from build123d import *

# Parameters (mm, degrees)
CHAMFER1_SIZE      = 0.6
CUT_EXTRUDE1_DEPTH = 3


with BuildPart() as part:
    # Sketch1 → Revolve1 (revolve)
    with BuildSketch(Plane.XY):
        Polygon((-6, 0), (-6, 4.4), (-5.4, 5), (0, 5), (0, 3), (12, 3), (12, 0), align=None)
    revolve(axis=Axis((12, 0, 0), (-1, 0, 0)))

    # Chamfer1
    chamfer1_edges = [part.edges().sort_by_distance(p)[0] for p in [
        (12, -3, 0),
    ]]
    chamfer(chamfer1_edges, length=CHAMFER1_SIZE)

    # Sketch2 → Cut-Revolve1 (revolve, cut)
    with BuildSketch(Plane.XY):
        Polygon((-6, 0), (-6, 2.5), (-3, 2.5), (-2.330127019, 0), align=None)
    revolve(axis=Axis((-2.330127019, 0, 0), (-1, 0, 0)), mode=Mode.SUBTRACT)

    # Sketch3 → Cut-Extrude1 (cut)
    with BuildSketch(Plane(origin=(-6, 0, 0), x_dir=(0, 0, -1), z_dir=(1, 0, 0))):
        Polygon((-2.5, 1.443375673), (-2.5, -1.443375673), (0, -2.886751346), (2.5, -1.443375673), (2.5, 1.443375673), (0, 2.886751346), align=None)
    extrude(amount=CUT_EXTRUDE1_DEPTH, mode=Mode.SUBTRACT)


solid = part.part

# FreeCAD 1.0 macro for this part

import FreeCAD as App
import Part
import Sketcher
Q = App.Units.Quantity


def edges_at(feature, points):
    """Names of the edges that pass closest to the given points."""
    edges = feature.Shape.Edges
    near = lambda p: min(range(len(edges)), key=lambda i: edges[i].distToShape(Part.Vertex(*p))[0])
    return sorted({f"Edge{near(p) + 1}" for p in points})


def add_polygon(sketch, points):
    """Adds a closed chain of lines whose ends are joined by coincident constraints."""
    first, n = sketch.GeometryCount, len(points)
    for a, b in zip(points, points[1:] + points[:1]):
        sketch.addGeometry(Part.LineSegment(App.Vector(*a, 0), App.Vector(*b, 0)), False)
    for i in range(n):
        sketch.addConstraint(Sketcher.Constraint("Coincident", first + i, 2, first + (i + 1) % n, 1))

doc = App.newDocument("Part")
body = doc.addObject("PartDesign::Body", "Body")

# Sketch on XY plane
sketch1 = body.newObject("Sketcher::SketchObject", "Sketch")
sketch1.AttachmentSupport = (doc.getObject("XY_Plane"), [""])
sketch1.MapMode = "FlatFace"
add_polygon(sketch1, [(-6, 4.4), (-6, 0), (12, 0), (12, 3), (0, 3), (0, 5), (-5.4, 5)])  # lines 0-6
sketch1.addConstraint([
    Sketcher.Constraint("Vertical", 0),
    Sketcher.Constraint("Horizontal", 1),
    Sketcher.Constraint("Vertical", 2),
    Sketcher.Constraint("Horizontal", 3),
    Sketcher.Constraint("Vertical", 4),
    Sketcher.Constraint("Horizontal", 5),
    Sketcher.Constraint("PointOnObject", 0, 2, -1),
    Sketcher.Constraint("PointOnObject", 3, 2, -2),
    Sketcher.Constraint("DistanceX", 1, 1, 1, 2, Q("18 mm")),
    Sketcher.Constraint("DistanceX", 3, 2, 3, 1, Q("12 mm")),
    Sketcher.Constraint("DistanceY", 2, 1, 2, 2, Q("3 mm")),
    Sketcher.Constraint("DistanceY", 4, 1, 4, 2, Q("2 mm")),
    Sketcher.Constraint("Angle", 6, Q("-135 deg")),
    Sketcher.Constraint("DistanceX", 5, 2, 5, 1, Q("5.4 mm")),
])
revolution = body.newObject("PartDesign::Revolution", "Revolution")
revolution.Profile = sketch1
revolution.ReferenceAxis = (sketch1, ["H_Axis"])
revolution.Angle = 360
doc.recompute()

chamfer = body.newObject("PartDesign::Chamfer", "Chamfer")
chamfer.Base = (revolution, edges_at(revolution, [(12, -3, 0)]))
chamfer.Size = 0.6

# Sketch on XY plane
sketch2 = body.newObject("Sketcher::SketchObject", "Sketch001")
sketch2.AttachmentSupport = (doc.getObject("XY_Plane"), [""])
sketch2.MapMode = "FlatFace"
add_polygon(sketch2, [(-6, 2.5), (-6, 0), (-2.3, 0), (-3, 2.5)])  # lines 0-3
sketch2.addConstraint([
    Sketcher.Constraint("Vertical", 0),
    Sketcher.Constraint("Horizontal", 1),
    Sketcher.Constraint("Horizontal", 3),
    Sketcher.Constraint("PointOnObject", 0, 2, -1),
    Sketcher.Constraint("DistanceX", 3, 2, 3, 1, Q("3 mm")),
    Sketcher.Constraint("Angle", 2, Q("105 deg")),
    Sketcher.Constraint("DistanceY", 0, 2, 0, 1, Q("2.5 mm")),
    Sketcher.Constraint("DistanceX", 0, 2, -1, 1, Q("6 mm")),
])
groove = body.newObject("PartDesign::Groove", "Groove")
groove.Profile = sketch2
groove.ReferenceAxis = (sketch2, ["H_Axis"])
groove.Angle = 360

# Sketch on YZ plane
sketch3 = body.newObject("Sketcher::SketchObject", "Sketch002")
sketch3.AttachmentSupport = (doc.getObject("YZ_Plane"), [""])
sketch3.MapMode = "FlatFace"
sketch3.AttachmentOffset = App.Placement(App.Vector(0, 0, -6), App.Rotation())
add_polygon(sketch3, [(1.4, 2.5), (-1.4, 2.5), (-2.9, 0), (-1.4, -2.5), (1.4, -2.5), (2.9, 0)])  # lines 0-5
sketch3.addConstraint([
    Sketcher.Constraint("Horizontal", 0),
    Sketcher.Constraint("Horizontal", 3),
    Sketcher.Constraint("Symmetric", 0, 2, 3, 2, -1, 1),
    Sketcher.Constraint("Symmetric", 1, 2, 4, 2, -1, 1),
    Sketcher.Constraint("PointOnObject", 1, 2, -1),
    Sketcher.Constraint("Parallel", 2, 5),
    Sketcher.Constraint("Vertical", 0, 2, 2, 2),
    Sketcher.Constraint("Angle", 1, Q("-120 deg")),
    Sketcher.Constraint("DistanceY", 2, 2, 0, 2, Q("5 mm")),
    Sketcher.Constraint("DistanceX", 0, 2, 0, 1, Q("2.886751 mm")),
])
pocket1 = body.newObject("PartDesign::Pocket", "Pocket")
pocket1.Profile = sketch3
pocket1.Length = 3
pocket1.Reversed = True

doc.recompute()
